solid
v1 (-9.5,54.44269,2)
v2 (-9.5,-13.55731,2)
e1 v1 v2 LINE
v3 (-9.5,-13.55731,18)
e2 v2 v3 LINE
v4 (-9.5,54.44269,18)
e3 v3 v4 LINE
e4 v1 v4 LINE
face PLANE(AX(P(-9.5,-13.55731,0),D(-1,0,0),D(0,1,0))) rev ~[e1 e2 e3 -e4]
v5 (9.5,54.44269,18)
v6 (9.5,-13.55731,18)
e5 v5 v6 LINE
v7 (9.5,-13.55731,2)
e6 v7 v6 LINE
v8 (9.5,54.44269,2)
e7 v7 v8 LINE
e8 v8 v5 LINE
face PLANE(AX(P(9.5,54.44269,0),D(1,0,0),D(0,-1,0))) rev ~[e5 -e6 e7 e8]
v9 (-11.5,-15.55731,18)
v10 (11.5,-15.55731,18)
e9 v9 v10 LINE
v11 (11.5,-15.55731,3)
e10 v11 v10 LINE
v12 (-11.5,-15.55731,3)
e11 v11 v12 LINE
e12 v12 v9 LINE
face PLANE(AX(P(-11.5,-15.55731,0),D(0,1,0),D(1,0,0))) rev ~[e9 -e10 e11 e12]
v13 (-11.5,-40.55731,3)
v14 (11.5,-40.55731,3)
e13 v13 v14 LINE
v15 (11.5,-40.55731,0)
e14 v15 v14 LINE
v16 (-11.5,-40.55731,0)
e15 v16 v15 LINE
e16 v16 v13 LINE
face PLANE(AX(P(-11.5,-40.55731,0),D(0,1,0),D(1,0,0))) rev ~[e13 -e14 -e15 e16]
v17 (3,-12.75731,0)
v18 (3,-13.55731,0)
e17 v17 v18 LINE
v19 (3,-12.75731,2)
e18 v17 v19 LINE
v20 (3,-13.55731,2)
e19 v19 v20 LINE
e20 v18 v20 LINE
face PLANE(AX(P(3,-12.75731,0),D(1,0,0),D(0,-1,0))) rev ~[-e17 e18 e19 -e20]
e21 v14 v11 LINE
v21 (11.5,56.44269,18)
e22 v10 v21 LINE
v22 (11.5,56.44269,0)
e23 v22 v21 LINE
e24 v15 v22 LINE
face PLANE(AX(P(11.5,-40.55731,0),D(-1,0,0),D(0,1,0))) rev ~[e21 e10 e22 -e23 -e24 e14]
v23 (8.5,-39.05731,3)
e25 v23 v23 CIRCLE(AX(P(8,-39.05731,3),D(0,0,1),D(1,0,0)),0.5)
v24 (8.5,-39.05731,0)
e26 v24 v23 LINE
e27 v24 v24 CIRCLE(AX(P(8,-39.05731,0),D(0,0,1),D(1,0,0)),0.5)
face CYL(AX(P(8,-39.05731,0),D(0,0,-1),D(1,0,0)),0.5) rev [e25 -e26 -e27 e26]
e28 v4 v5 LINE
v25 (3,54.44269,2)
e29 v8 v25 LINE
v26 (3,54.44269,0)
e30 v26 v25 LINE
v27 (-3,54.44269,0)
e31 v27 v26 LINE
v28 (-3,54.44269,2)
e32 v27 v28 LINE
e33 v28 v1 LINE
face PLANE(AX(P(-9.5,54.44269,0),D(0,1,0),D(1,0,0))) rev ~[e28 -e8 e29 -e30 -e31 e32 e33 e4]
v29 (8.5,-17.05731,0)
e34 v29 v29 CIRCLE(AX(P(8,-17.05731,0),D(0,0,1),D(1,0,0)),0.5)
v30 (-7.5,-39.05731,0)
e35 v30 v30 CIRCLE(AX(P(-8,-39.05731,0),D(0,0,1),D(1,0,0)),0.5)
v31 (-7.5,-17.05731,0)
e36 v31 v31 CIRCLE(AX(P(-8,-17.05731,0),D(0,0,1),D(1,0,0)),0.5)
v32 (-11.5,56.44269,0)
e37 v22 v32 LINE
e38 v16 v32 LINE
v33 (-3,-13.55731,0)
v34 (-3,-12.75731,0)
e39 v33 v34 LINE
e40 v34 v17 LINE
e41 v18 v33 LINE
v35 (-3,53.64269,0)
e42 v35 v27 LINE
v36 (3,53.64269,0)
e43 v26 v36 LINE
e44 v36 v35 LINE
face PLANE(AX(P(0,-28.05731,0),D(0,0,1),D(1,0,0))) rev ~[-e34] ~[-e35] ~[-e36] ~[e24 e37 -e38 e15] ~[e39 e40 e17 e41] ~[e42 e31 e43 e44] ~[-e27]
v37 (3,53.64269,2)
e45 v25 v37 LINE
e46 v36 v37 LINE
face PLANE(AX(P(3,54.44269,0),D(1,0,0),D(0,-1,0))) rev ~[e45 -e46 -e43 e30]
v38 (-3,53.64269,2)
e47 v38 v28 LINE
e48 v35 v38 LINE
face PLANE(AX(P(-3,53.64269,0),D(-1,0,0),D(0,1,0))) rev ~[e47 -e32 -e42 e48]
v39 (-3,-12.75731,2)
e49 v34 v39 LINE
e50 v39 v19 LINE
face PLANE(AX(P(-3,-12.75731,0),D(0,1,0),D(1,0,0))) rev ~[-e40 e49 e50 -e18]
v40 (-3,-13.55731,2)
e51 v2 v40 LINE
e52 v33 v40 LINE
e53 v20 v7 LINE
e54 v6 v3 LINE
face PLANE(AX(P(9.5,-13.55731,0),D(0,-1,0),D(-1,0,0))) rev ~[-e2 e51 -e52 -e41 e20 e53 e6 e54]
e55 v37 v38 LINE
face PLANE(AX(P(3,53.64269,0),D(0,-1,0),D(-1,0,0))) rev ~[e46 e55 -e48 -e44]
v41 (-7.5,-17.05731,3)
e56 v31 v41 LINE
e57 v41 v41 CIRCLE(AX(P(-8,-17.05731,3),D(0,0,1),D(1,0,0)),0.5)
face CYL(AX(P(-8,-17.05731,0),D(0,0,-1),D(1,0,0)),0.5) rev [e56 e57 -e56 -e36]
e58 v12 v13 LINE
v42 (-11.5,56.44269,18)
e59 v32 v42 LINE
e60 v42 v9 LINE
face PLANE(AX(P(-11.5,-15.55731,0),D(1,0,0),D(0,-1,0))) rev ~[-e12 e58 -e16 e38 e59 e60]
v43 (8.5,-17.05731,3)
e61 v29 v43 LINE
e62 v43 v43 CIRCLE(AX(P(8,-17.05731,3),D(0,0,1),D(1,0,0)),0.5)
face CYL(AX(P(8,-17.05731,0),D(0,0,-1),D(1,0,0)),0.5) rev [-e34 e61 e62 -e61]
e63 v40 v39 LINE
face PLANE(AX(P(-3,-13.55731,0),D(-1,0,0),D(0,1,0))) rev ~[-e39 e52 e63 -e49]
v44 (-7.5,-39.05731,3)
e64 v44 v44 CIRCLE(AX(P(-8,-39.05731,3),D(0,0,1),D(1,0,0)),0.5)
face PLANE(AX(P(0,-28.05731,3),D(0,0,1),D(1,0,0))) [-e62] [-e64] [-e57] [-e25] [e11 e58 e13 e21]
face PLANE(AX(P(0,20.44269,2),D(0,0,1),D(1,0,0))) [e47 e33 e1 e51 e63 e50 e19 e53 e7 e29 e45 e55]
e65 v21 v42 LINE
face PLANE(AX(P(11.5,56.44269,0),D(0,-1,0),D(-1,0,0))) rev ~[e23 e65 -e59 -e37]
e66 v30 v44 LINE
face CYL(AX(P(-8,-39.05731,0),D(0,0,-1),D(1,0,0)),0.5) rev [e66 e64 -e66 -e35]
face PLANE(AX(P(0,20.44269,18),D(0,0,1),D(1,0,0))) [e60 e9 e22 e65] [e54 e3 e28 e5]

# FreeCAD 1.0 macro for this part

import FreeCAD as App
import Part
import Sketcher

V = App.Vector
Q = App.Units.Quantity


def add_polygon(sketch, points):
    """Adds a closed chain of lines whose ends are joined by coincident constraints."""
    first, n = sketch.GeometryCount, len(points)
    for a, b in zip(points, points[1:] + points[:1]):
        sketch.addGeometry(Part.LineSegment(App.Vector(*a, 0), App.Vector(*b, 0)), False)
    for i in range(n):
        sketch.addConstraint(Sketcher.Constraint("Coincident", first + i, 2, first + (i + 1) % n, 1))

doc = App.newDocument("Part")
body = doc.addObject("PartDesign::Body", "Body")

sketch1 = doc.addObject("Sketcher::SketchObject", "Sketch")
body.addObject(sketch1)
sketch1.AttachmentSupport = (doc.XY_Plane, [""])
sketch1.MapMode = "FlatFace"
add_polygon(sketch1, [(-3, 54.4), (-9.5, 54.4), (-9.5, -13.6), (-3, -13.6), (-3, -12.8), (3, -12.8), (3, -13.6), (9.5, -13.6), (9.5, 54.4), (3, 54.4), (3, 53.6), (-3, 53.6)])
sketch1.addConstraint(Sketcher.Constraint("Horizontal", 0))
sketch1.addConstraint(Sketcher.Constraint("Vertical", 1))
sketch1.addConstraint(Sketcher.Constraint("Horizontal", 2))
sketch1.addConstraint(Sketcher.Constraint("Vertical", 3))
sketch1.addConstraint(Sketcher.Constraint("Horizontal", 4))
sketch1.addConstraint(Sketcher.Constraint("Vertical", 5))
sketch1.addConstraint(Sketcher.Constraint("Horizontal", 6))
sketch1.addConstraint(Sketcher.Constraint("Vertical", 7))
sketch1.addConstraint(Sketcher.Constraint("Horizontal", 8))
sketch1.addConstraint(Sketcher.Constraint("Vertical", 9))
sketch1.addConstraint(Sketcher.Constraint("Horizontal", 10))
sketch1.addConstraint(Sketcher.Constraint("Vertical", 11))
sketch1.addConstraint(Sketcher.Constraint("Symmetric", 2, 2, 5, 2, -2))
sketch1.addConstraint(Sketcher.Constraint("Symmetric", 0, 2, 7, 2, -2))
sketch1.addConstraint(Sketcher.Constraint("Vertical", 5, 2, 8, 2))
sketch1.addConstraint(Sketcher.Constraint("Vertical", 3, 2, 10, 2))
sketch1.addConstraint(Sketcher.Constraint("Equal", 5, 9))
sketch1.addConstraint(Sketcher.Constraint("DistanceX", 4, 1, 4, 2, Q("6 mm")))
sketch1.addConstraint(Sketcher.Constraint("DistanceY", 1, 2, 1, 1, Q("68 mm")))
sketch1.addConstraint(Sketcher.Constraint("DistanceX", 0, 2, 0, 1, Q("6.5 mm")))
sketch1.addConstraint(Sketcher.Constraint("DistanceY", 3, 1, 3, 2, Q("0.8 mm")))
sketch1.addConstraint(Sketcher.Constraint("DistanceY", -1, 1, 0, 2, Q("54.44269 mm")))
pad1 = doc.addObject("PartDesign::Pad", "Pad")
body.addObject(pad1)
pad1.Profile = sketch1
pad1.Length = 2

sketch2 = doc.addObject("Sketcher::SketchObject", "Sketch001")
body.addObject(sketch2)
sketch2.AttachmentSupport = (doc.XY_Plane, [""])
sketch2.MapMode = "FlatFace"
add_polygon(sketch2, [(-12, -16), (12, -16), (12, 56), (-12, 56)])
add_polygon(sketch2, [(10, -14), (-10, -14), (-10, 54), (10, 54)])
sketch2.addConstraint(Sketcher.Constraint("Horizontal", 0))
sketch2.addConstraint(Sketcher.Constraint("Vertical", 1))
sketch2.addConstraint(Sketcher.Constraint("Horizontal", 2))
sketch2.addConstraint(Sketcher.Constraint("Vertical", 3))
sketch2.addConstraint(Sketcher.Constraint("Horizontal", 4))
sketch2.addConstraint(Sketcher.Constraint("Vertical", 5))
sketch2.addConstraint(Sketcher.Constraint("Horizontal", 6))
sketch2.addConstraint(Sketcher.Constraint("Vertical", 7))
sketch2.addConstraint(Sketcher.Constraint("DistanceX", 0, 1, 0, 2, Q("23 mm")))
sketch2.addConstraint(Sketcher.Constraint("DistanceX", 4, 2, 4, 1, Q("19 mm")))
sketch2.addConstraint(Sketcher.Constraint("DistanceY", 1, 1, 1, 2, Q("72 mm")))
sketch2.addConstraint(Sketcher.Constraint("DistanceY", 5, 1, 5, 2, Q("68 mm")))
sketch2.addConstraint(Sketcher.Constraint("DistanceX", 3, 2, 4, 2, Q("2 mm")))
sketch2.addConstraint(Sketcher.Constraint("DistanceY", 3, 2, 4, 2, Q("2 mm")))
sketch2.addConstraint(Sketcher.Constraint("DistanceX", -1, 1, 0, 2, Q("11.5 mm")))
sketch2.addConstraint(Sketcher.Constraint("DistanceY", 0, 2, -1, 1, Q("15.55731 mm")))
pad2 = doc.addObject("PartDesign::Pad", "Pad001")
body.addObject(pad2)
pad2.Profile = sketch2
pad2.Length = 18

sketch3 = doc.addObject("Sketcher::SketchObject", "Sketch002")
body.addObject(sketch3)
sketch3.AttachmentSupport = (doc.XY_Plane, [""])
sketch3.MapMode = "FlatFace"
add_polygon(sketch3, [(11.5, -15.6), (-11.5, -15.6), (-11.5, -40.6), (11.5, -40.6)])
sketch3.addGeometry(Part.Circle(V(-8, -39.1, 0), V(0, 0, 1), 0.5), False)
sketch3.addGeometry(Part.Circle(V(8, -39.1, 0), V(0, 0, 1), 0.5), False)
sketch3.addGeometry(Part.Circle(V(-8, -17.1, 0), V(0, 0, 1), 0.5), False)
sketch3.addGeometry(Part.Circle(V(8, -17.1, 0), V(0, 0, 1), 0.5), False)
sketch3.addConstraint(Sketcher.Constraint("Horizontal", 0))
sketch3.addConstraint(Sketcher.Constraint("Vertical", 1))
sketch3.addConstraint(Sketcher.Constraint("Horizontal", 2))
sketch3.addConstraint(Sketcher.Constraint("Vertical", 3))
sketch3.addConstraint(Sketcher.Constraint("Equal", 4, 5))
sketch3.addConstraint(Sketcher.Constraint("Equal", 5, 6))
sketch3.addConstraint(Sketcher.Constraint("Equal", 6, 7))
sketch3.addConstraint(Sketcher.Constraint("Symmetric", 4, 3, 5, 3, -2))
sketch3.addConstraint(Sketcher.Constraint("Symmetric", 6, 3, 7, 3, -2))
sketch3.addConstraint(Sketcher.Constraint("Vertical", 4, 3, 6, 3))
sketch3.addConstraint(Sketcher.Constraint("Diameter", 4, Q("1 mm")))
sketch3.addConstraint(Sketcher.Constraint("DistanceX", 0, 2, 0, 1, Q("23 mm")))
sketch3.addConstraint(Sketcher.Constraint("DistanceY", 1, 2, 1, 1, Q("25 mm")))
sketch3.addConstraint(Sketcher.Constraint("DistanceX", 4, 3, -1, 1, Q("8 mm")))
sketch3.addConstraint(Sketcher.Constraint("DistanceY", 4, 3, 6, 3, Q("22 mm")))
sketch3.addConstraint(Sketcher.Constraint("DistanceX", 0, 2, -1, 1, Q("11.5 mm")))
sketch3.addConstraint(Sketcher.Constraint("DistanceY", 6, 3, 0, 2, Q("1.5 mm")))
sketch3.addConstraint(Sketcher.Constraint("DistanceY", 4, 3, -1, 1, Q("39.05731 mm")))
pad3 = doc.addObject("PartDesign::Pad", "Pad002")
body.addObject(pad3)
pad3.Profile = sketch3
pad3.Length = 3

doc.recompute()
